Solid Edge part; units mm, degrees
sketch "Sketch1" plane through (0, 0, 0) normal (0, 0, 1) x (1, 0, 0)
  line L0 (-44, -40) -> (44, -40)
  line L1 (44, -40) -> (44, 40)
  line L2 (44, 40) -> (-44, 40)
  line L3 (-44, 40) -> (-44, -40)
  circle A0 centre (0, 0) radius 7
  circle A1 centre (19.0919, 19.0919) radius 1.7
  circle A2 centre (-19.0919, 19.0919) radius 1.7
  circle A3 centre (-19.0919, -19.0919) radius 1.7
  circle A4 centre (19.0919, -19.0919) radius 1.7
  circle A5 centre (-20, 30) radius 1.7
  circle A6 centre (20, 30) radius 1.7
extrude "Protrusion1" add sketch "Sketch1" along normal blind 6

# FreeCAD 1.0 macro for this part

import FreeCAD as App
import Part
import Sketcher
from FreeCAD import Vector
Q = App.Units.Quantity

doc = App.newDocument("Part")
body = doc.addObject("PartDesign::Body", "Body")

sketch1 = body.newObject("Sketcher::SketchObject", "Sketch")
sketch1.AttachmentSupport = (doc.getObject("XY_Plane"), [""])
sketch1.MapMode = "FlatFace"
sketch1.addGeometry([
    Part.LineSegment(Vector(-44, 40, 0), Vector(-44, -40, 0)),
    Part.LineSegment(Vector(-44, -40, 0), Vector(44, -40, 0)),
    Part.LineSegment(Vector(44, -40, 0), Vector(44, 40, 0)),
    Part.LineSegment(Vector(44, 40, 0), Vector(-44, 40, 0)),
    Part.Circle(Vector(-19.1, -19.1, 0), Vector(0, 0, 1), 1.7),
    Part.Circle(Vector(19.1, -19.1, 0), Vector(0, 0, 1), 1.7),
    Part.Circle(Vector(-19.1, 19.1, 0), Vector(0, 0, 1), 1.7),
    Part.Circle(Vector(-20, 30, 0), Vector(0, 0, 1), 1.7),
    Part.Circle(Vector(0, 0, 0), Vector(0, 0, 1), 7),
    Part.Circle(Vector(19.1, 19.1, 0), Vector(0, 0, 1), 1.7),
    Part.Circle(Vector(20, 30, 0), Vector(0, 0, 1), 1.7),
], False)
sketch1.addConstraint([
    Sketcher.Constraint("Coincident", 0, 2, 1, 1),
    Sketcher.Constraint("Coincident", 1, 2, 2, 1),
    Sketcher.Constraint("Coincident", 2, 2, 3, 1),
    Sketcher.Constraint("Coincident", 3, 2, 0, 1),
    Sketcher.Constraint("Vertical", 0),
    Sketcher.Constraint("Horizontal", 1),
    Sketcher.Constraint("Vertical", 2),
    Sketcher.Constraint("Horizontal", 3),
    Sketcher.Constraint("Coincident", 8, 3, -1, 1),
    Sketcher.Constraint("Equal", 4, 5),
    Sketcher.Constraint("Equal", 5, 6),
    Sketcher.Constraint("Equal", 6, 7),
    Sketcher.Constraint("Equal", 7, 9),
    Sketcher.Constraint("Equal", 9, 10),
    Sketcher.Constraint("Symmetric", 5, 3, 6, 3, -1, 1),
    Sketcher.Constraint("Symmetric", 4, 3, 9, 3, -1, 1),
    Sketcher.Constraint("Symmetric", 0, 2, 2, 2, -1, 1),
    Sketcher.Constraint("Symmetric", 4, 3, 5, 3, -2),
    Sketcher.Constraint("Symmetric", 7, 3, 10, 3, -2),
    Sketcher.Constraint("Diameter", 8, Q("14 mm")),
    Sketcher.Constraint("Diameter", 4, Q("3.4 mm")),
    Sketcher.Constraint("DistanceX", 1, 1, 1, 2, Q("88 mm")),
    Sketcher.Constraint("DistanceY", 0, 2, 0, 1, Q("80 mm")),
    Sketcher.Constraint("DistanceX", 7, 3, -1, 1, Q("20 mm")),
    Sketcher.Constraint("DistanceY", -1, 1, 7, 3, Q("30 mm")),
    Sketcher.Constraint("DistanceX", 4, 3, -1, 1, Q("19.092 mm")),
    Sketcher.Constraint("DistanceY", 4, 3, -1, 1, Q("19.092 mm")),
])
pad1 = body.newObject("PartDesign::Pad", "Pad")
pad1.Profile = sketch1
pad1.Length = 6

doc.recompute()
